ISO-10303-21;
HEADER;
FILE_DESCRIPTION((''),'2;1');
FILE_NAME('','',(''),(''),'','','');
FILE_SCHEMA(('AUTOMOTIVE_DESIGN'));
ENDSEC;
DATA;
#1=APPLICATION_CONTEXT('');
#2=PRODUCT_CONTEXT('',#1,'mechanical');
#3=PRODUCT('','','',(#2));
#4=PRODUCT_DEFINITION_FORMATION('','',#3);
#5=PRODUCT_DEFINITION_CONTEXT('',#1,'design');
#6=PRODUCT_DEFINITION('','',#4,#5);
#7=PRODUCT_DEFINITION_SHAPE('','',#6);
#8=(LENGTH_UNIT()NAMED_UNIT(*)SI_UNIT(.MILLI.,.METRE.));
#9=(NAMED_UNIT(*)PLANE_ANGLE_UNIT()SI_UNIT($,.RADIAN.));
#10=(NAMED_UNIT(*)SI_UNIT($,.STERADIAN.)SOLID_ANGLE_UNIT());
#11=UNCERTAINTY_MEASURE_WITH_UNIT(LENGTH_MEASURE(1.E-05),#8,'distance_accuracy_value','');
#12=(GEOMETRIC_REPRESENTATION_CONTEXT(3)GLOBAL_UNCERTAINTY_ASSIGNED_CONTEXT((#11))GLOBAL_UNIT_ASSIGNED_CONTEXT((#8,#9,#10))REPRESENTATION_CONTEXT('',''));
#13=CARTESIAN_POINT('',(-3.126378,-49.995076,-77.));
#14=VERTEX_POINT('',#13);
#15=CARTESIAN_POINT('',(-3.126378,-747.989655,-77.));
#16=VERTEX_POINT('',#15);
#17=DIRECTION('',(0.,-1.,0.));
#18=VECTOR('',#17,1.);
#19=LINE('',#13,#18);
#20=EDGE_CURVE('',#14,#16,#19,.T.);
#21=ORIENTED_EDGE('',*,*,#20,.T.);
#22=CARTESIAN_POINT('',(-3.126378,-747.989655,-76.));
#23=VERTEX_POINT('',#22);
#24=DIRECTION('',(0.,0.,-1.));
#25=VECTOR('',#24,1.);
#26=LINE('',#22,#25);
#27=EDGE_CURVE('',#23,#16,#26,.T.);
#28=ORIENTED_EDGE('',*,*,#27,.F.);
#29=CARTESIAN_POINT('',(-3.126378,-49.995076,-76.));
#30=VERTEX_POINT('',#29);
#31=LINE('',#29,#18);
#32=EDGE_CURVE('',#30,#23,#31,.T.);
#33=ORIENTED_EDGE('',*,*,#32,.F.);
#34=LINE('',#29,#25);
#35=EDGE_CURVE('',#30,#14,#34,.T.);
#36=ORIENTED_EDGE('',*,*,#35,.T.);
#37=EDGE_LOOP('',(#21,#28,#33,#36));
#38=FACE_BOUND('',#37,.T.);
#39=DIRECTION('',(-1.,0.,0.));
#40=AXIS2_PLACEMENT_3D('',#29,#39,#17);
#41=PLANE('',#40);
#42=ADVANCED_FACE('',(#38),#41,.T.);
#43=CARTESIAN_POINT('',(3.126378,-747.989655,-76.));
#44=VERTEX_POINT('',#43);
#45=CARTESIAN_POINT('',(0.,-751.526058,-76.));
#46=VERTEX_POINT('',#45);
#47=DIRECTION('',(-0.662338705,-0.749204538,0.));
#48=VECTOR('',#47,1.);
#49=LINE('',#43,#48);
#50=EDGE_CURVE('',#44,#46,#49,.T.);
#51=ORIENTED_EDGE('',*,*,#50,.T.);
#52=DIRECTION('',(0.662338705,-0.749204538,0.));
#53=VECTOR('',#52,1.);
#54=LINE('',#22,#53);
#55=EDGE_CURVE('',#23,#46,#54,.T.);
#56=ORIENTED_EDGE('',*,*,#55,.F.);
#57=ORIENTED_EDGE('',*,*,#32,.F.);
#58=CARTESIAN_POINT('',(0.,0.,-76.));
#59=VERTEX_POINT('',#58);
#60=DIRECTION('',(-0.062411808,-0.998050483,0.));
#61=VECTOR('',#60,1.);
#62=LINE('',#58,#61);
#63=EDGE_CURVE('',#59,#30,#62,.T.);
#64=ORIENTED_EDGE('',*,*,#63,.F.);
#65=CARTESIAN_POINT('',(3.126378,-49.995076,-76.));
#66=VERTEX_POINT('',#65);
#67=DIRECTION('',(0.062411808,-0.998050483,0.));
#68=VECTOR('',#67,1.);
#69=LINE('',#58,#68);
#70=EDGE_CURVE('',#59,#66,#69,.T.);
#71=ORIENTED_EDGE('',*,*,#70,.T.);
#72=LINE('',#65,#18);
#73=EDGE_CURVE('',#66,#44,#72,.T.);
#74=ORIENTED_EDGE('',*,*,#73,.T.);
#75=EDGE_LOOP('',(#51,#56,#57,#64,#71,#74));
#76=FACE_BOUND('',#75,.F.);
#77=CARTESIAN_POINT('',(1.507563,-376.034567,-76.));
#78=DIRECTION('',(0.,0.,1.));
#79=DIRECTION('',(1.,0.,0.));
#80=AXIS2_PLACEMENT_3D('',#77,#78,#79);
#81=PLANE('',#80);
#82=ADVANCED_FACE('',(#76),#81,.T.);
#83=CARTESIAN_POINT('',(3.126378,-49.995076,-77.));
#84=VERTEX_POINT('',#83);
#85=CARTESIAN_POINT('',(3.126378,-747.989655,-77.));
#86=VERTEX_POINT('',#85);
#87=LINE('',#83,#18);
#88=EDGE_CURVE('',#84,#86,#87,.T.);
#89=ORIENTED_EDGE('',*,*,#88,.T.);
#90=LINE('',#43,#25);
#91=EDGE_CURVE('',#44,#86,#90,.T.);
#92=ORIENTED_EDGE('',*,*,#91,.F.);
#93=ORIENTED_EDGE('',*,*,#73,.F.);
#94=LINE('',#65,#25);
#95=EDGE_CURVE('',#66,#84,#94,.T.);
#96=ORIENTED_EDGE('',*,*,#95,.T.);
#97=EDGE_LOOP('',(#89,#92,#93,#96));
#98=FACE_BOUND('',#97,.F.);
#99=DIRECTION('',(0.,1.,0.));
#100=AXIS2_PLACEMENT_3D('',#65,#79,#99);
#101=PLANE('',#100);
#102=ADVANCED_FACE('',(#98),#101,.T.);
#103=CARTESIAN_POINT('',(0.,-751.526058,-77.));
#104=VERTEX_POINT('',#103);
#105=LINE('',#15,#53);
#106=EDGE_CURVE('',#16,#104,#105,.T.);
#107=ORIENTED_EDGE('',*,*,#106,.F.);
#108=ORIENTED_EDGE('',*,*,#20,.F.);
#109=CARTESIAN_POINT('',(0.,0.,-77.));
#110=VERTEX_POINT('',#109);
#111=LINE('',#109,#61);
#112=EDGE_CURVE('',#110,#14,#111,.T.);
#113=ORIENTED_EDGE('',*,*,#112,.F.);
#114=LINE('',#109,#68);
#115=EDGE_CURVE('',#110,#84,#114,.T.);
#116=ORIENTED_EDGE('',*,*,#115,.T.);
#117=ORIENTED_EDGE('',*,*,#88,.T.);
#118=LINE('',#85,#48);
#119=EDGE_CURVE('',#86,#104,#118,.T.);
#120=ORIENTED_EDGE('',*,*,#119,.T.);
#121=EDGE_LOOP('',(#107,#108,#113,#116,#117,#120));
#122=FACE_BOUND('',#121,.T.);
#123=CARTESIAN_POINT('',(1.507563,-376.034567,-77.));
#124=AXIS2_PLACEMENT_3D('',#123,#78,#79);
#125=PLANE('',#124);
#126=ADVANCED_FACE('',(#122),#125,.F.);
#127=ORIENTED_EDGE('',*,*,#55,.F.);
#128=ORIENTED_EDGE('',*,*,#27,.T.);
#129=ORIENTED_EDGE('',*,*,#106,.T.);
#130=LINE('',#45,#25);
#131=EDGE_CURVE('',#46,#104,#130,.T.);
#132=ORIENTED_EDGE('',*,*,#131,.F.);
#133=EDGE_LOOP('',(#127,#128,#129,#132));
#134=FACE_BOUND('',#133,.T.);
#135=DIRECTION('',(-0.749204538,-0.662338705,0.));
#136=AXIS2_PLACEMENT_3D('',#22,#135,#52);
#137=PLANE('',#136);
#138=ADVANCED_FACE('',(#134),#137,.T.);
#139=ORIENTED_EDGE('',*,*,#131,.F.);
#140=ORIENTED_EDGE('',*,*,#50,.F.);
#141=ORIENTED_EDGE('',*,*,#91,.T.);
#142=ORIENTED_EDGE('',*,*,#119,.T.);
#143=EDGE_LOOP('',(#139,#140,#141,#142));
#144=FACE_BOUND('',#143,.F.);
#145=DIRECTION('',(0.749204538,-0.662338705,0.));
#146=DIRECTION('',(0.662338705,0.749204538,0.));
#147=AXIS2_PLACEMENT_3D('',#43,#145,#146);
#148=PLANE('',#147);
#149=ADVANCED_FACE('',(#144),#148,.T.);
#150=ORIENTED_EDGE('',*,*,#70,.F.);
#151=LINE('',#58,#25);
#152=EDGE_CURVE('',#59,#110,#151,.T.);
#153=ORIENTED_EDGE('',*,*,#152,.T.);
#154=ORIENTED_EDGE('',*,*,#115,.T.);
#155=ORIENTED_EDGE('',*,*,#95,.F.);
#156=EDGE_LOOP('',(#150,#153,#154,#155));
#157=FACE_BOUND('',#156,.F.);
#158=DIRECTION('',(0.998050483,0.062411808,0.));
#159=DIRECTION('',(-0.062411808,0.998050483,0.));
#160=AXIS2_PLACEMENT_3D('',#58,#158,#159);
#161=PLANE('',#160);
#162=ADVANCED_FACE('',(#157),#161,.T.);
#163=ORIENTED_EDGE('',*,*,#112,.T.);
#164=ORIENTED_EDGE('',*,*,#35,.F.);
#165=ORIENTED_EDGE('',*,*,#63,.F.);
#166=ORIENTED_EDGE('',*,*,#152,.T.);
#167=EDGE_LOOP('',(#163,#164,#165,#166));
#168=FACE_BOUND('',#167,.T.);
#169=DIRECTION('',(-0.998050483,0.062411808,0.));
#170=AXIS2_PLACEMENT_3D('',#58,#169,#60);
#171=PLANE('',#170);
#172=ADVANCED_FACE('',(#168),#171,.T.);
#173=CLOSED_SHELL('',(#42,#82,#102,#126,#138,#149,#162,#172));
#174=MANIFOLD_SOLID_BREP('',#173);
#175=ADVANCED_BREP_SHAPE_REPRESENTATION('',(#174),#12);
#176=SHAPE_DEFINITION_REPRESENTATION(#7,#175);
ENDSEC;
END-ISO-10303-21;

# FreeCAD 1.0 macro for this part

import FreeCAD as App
import Part
import Sketcher

doc = App.newDocument("Part")
body = doc.addObject("PartDesign::Body", "Body")

# Sketch on XY plane
sketch1 = body.newObject("Sketcher::SketchObject", "Sketch")
sketch1.AttachmentSupport = (doc.getObject("XY_Plane"), [""])
sketch1.MapMode = "FlatFace"
sketch1.AttachmentOffset = App.Placement(App.Vector(0, 0, -76), App.Rotation())
sketch1.addGeometry([
    Part.LineSegment(App.Vector(0, -751.5, 0), App.Vector(0, 0, 0)),
    Part.LineSegment(App.Vector(0, 0, 0), App.Vector(-3.1, -50, 0)),
    Part.LineSegment(App.Vector(-3.1, -50, 0), App.Vector(-3.1, -748, 0)),
    Part.LineSegment(App.Vector(-3.1, -748, 0), App.Vector(0, -751.5, 0)),
], False)
sketch1.addConstraint([
    Sketcher.Constraint("Coincident", 0, 2, 1, 1),
    Sketcher.Constraint("Coincident", 1, 2, 2, 1),
    Sketcher.Constraint("Coincident", 2, 2, 3, 1),
    Sketcher.Constraint("Coincident", 3, 2, 0, 1),
    Sketcher.Constraint("Vertical", 0),
    Sketcher.Constraint("Vertical", 2),
    Sketcher.Constraint("Coincident", 0, 2, -1, 1),
    Sketcher.Constraint("DistanceY", 0, 1, 0, 2, 751.526058),
    Sketcher.Constraint("DistanceY", 2, 2, 2, 1, 697.994579),
    Sketcher.Constraint("Distance", 3, 4.72021),
    Sketcher.Constraint("DistanceY", 3, 2, 1, 2, 701.530982),
])
pad1 = body.newObject("PartDesign::Pad", "Pad")
pad1.Profile = sketch1
pad1.Length = 1
pad1.Reversed = True
body2 = doc.addObject("PartDesign::Body", "Body001")
doc.recompute()

body2.BaseFeature = body
doc.recompute()

mirroring = doc.addObject("Part::Mirroring", "Mirroring")
mirroring.Source = body
mirroring.Base = App.Vector(0, -375.763029, -76.5)
mirroring.Normal = App.Vector(1, 0, 0)
body3 = doc.addObject("PartDesign::Body", "Body002")
body3.BaseFeature = mirroring
boolean = body2.newObject("PartDesign::Boolean", "Boolean")
boolean.Type = "Fuse"
boolean.addObjects([body3])
doc.recompute()
mirroring.Visibility = False

doc.recompute()
